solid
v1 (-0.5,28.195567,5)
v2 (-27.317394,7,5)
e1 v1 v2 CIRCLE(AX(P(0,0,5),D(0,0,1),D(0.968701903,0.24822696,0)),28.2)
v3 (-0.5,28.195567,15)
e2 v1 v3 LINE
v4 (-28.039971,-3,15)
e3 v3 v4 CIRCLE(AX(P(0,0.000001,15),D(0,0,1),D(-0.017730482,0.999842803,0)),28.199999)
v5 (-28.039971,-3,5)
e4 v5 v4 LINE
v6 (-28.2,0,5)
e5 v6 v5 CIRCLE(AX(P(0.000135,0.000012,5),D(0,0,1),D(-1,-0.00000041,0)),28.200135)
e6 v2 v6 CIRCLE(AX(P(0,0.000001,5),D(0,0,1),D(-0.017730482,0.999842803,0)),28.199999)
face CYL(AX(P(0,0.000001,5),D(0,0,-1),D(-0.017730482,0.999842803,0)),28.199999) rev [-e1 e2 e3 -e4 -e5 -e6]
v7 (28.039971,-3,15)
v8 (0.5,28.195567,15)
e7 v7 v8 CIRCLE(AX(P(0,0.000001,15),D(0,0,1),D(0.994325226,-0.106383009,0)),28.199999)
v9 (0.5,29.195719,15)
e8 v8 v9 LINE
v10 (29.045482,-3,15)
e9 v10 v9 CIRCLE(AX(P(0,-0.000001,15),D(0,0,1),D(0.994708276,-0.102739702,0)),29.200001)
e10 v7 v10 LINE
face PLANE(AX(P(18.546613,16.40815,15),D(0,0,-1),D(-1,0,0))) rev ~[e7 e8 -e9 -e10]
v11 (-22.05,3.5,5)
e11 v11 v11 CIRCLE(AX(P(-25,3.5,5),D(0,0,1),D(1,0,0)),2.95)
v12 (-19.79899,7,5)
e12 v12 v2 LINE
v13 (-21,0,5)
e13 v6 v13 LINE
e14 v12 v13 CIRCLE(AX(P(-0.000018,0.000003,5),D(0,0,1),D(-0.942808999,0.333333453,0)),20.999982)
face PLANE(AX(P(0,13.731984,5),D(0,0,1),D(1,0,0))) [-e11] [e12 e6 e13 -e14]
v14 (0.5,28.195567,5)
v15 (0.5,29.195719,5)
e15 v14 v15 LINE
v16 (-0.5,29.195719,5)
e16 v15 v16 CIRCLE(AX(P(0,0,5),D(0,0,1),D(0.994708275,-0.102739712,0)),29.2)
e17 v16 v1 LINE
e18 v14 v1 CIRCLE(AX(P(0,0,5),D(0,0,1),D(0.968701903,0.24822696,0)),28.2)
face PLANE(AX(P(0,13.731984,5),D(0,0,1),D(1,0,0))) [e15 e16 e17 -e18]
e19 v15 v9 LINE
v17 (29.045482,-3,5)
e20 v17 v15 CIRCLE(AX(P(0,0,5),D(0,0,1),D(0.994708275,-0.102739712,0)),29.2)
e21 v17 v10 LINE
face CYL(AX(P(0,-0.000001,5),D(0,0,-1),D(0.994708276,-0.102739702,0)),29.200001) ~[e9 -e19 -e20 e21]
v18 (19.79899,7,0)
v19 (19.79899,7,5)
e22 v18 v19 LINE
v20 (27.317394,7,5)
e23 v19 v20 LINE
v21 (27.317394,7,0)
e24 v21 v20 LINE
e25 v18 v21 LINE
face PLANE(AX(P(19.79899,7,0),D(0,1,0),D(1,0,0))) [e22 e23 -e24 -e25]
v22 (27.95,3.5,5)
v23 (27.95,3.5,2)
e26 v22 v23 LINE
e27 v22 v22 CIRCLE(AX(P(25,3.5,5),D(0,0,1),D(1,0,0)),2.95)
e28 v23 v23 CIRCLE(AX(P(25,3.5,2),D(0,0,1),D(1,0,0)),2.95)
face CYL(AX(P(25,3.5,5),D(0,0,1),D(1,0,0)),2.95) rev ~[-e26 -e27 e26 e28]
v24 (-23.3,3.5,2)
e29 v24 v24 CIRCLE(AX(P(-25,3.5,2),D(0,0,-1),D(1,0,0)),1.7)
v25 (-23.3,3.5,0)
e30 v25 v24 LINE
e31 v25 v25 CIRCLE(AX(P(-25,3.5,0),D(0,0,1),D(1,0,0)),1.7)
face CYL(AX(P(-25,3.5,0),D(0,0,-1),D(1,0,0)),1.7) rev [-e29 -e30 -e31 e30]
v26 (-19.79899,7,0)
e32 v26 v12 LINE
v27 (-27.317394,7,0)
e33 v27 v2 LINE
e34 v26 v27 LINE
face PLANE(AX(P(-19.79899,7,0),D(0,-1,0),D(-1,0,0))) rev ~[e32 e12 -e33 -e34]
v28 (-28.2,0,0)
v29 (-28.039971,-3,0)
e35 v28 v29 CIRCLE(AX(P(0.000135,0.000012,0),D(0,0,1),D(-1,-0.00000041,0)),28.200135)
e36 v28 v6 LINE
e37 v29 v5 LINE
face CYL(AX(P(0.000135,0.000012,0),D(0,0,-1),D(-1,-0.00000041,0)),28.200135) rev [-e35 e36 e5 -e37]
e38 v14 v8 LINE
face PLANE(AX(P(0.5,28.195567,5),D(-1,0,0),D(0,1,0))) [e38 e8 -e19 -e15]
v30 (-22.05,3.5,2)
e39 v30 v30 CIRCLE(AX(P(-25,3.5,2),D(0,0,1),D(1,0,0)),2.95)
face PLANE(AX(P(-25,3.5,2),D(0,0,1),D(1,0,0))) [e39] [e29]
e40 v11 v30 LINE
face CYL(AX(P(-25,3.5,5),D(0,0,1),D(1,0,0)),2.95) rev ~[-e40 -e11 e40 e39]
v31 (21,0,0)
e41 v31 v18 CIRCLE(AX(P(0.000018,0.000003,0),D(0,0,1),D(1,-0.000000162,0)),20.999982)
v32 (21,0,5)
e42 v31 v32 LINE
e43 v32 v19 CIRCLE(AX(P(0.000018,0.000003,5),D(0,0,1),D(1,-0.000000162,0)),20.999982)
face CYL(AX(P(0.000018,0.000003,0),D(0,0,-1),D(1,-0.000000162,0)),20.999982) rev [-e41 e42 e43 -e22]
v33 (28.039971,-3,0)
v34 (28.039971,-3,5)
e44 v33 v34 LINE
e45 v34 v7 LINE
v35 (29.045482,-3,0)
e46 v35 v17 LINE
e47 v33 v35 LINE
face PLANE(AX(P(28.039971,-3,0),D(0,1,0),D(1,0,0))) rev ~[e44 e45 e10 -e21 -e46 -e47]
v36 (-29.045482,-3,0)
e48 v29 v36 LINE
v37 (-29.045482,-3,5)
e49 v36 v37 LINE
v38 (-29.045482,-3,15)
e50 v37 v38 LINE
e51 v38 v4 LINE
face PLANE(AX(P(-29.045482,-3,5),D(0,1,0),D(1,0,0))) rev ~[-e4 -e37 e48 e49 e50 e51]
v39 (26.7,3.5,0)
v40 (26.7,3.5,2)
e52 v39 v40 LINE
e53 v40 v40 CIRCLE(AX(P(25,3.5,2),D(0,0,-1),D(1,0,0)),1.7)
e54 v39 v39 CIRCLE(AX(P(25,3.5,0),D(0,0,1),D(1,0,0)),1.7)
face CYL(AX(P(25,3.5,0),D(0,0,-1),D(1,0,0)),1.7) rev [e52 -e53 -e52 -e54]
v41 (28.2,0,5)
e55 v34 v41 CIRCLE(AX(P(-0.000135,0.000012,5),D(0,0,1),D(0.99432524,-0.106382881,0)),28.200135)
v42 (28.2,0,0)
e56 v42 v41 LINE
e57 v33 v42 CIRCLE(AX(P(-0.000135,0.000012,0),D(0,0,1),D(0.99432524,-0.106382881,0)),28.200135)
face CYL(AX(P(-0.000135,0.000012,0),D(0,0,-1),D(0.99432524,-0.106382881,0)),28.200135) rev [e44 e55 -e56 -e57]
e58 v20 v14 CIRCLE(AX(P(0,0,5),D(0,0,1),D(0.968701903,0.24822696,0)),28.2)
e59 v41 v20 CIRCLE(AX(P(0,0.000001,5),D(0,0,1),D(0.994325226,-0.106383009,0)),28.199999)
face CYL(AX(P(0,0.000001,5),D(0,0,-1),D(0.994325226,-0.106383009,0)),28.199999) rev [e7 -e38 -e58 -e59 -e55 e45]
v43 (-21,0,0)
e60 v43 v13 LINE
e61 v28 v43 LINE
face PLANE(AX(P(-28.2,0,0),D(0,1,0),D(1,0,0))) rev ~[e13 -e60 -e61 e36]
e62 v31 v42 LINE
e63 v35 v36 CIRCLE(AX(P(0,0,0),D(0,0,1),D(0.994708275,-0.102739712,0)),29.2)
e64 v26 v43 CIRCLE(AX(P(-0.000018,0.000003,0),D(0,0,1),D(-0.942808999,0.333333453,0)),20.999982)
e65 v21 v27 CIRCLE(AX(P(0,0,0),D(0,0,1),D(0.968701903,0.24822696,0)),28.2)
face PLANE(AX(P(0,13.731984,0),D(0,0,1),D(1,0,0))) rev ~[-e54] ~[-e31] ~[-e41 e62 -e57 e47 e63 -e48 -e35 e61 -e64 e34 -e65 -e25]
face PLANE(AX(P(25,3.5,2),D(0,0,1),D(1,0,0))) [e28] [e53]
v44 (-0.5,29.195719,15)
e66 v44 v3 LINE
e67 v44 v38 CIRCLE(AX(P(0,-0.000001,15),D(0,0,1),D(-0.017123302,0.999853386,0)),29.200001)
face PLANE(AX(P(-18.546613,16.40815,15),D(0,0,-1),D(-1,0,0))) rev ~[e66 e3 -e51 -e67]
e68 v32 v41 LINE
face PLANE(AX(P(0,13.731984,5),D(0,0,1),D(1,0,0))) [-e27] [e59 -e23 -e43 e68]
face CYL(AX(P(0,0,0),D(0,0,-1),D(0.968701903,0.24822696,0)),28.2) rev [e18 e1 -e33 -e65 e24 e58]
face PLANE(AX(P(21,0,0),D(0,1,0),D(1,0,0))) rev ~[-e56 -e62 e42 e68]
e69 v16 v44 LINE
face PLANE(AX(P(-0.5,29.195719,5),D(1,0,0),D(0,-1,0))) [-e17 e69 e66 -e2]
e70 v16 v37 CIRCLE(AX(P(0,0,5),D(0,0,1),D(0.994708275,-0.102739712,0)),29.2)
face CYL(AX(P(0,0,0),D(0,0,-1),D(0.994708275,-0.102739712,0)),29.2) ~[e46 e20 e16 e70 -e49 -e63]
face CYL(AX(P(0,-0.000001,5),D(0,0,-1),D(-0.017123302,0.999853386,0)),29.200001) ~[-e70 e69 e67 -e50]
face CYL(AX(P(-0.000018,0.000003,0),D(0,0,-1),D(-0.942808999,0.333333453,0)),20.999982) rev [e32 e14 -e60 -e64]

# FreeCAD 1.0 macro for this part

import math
import FreeCAD as App
import Part
import Sketcher
Q = App.Units.Quantity

doc = App.newDocument("Part")
body = doc.addObject("PartDesign::Body", "Body")

sketch1 = body.newObject("Sketcher::SketchObject", "Sketch")
sketch1.AttachmentSupport = (doc.getObject("XY_Plane"), [""])
sketch1.MapMode = "FlatFace"
sketch1.addGeometry(Part.ArcOfCircle(Part.Circle(App.Vector(0, 0, 0), App.Vector(0, 0, 1), 29.2), math.radians(-5.896957), math.radians(185.896957)), False)
sketch1.addGeometry(Part.LineSegment(App.Vector(-29.045482, -3, 0), App.Vector(-28.039971, -3, 0)), False)
sketch1.addGeometry(Part.ArcOfCircle(Part.Circle(App.Vector(0.000135, 0.000012, 0), App.Vector(0, 0, 1), 28.200135), math.radians(-179.999977), math.radians(-173.893154)), False)
sketch1.addGeometry(Part.LineSegment(App.Vector(-28.2, 0, 0), App.Vector(-21, 0, 0)), False)
sketch1.addGeometry(Part.ArcOfCircle(Part.Circle(App.Vector(-0.000018, 0.000003, 0), App.Vector(0, 0, 1), 20.999982), math.radians(160.528772), math.radians(180.000009)), False)
sketch1.addGeometry(Part.LineSegment(App.Vector(-19.79899, 7, 0), App.Vector(-27.317394, 7, 0)), False)
sketch1.addGeometry(Part.ArcOfCircle(Part.Circle(App.Vector(0, 0, 0), App.Vector(0, 0, 1), 28.2), math.radians(14.372618), math.radians(165.627382)), False)
sketch1.addGeometry(Part.LineSegment(App.Vector(27.317394, 7, 0), App.Vector(19.79899, 7, 0)), False)
sketch1.addGeometry(Part.ArcOfCircle(Part.Circle(App.Vector(0.000018, 0.000003, 0), App.Vector(0, 0, 1), 20.999982), math.radians(-0.000009), math.radians(19.471228)), False)
sketch1.addGeometry(Part.LineSegment(App.Vector(21, 0, 0), App.Vector(28.2, 0, 0)), False)
sketch1.addGeometry(Part.ArcOfCircle(Part.Circle(App.Vector(-0.000135, 0.000012, 0), App.Vector(0, 0, 1), 28.200135), math.radians(-6.106846), math.radians(-0.000023)), False)
sketch1.addGeometry(Part.LineSegment(App.Vector(28.039971, -3, 0), App.Vector(29.045482, -3, 0)), False)
sketch1.addGeometry(Part.Circle(App.Vector(-25, 3.5, 0), App.Vector(0, 0, 1), 1.7), False)
sketch1.addGeometry(Part.Circle(App.Vector(25, 3.5, 0), App.Vector(0, 0, 1), 1.7), False)
sketch1.addConstraint(Sketcher.Constraint("Coincident", 0, 2, 1, 1))
sketch1.addConstraint(Sketcher.Constraint("Coincident", 1, 2, 2, 2))
sketch1.addConstraint(Sketcher.Constraint("Coincident", 2, 1, 3, 1))
sketch1.addConstraint(Sketcher.Constraint("Coincident", 3, 2, 4, 2))
sketch1.addConstraint(Sketcher.Constraint("Coincident", 4, 1, 5, 1))
sketch1.addConstraint(Sketcher.Constraint("Coincident", 5, 2, 6, 2))
sketch1.addConstraint(Sketcher.Constraint("Coincident", 6, 1, 7, 1))
sketch1.addConstraint(Sketcher.Constraint("Coincident", 7, 2, 8, 2))
sketch1.addConstraint(Sketcher.Constraint("Coincident", 8, 1, 9, 1))
sketch1.addConstraint(Sketcher.Constraint("Coincident", 9, 2, 10, 2))
sketch1.addConstraint(Sketcher.Constraint("Coincident", 10, 1, 11, 1))
sketch1.addConstraint(Sketcher.Constraint("Coincident", 11, 2, 0, 1))
sketch1.addConstraint(Sketcher.Constraint("Horizontal", 1))
sketch1.addConstraint(Sketcher.Constraint("Horizontal", 3))
sketch1.addConstraint(Sketcher.Constraint("Horizontal", 5))
sketch1.addConstraint(Sketcher.Constraint("Horizontal", 7))
sketch1.addConstraint(Sketcher.Constraint("Horizontal", 9))
sketch1.addConstraint(Sketcher.Constraint("Horizontal", 11))
sketch1.addConstraint(Sketcher.Constraint("Coincident", 0, 3, -1, 1))
sketch1.addConstraint(Sketcher.Constraint("Coincident", 6, 3, -1, 1))
sketch1.addConstraint(Sketcher.Constraint("Equal", 4, 8))
sketch1.addConstraint(Sketcher.Constraint("Equal", 2, 10))
sketch1.addConstraint(Sketcher.Constraint("Equal", 12, 13))
sketch1.addConstraint(Sketcher.Constraint("Symmetric", 4, 3, 8, 3, -1, 1))
sketch1.addConstraint(Sketcher.Constraint("Symmetric", 2, 1, 9, 2, -1, 1))
sketch1.addConstraint(Sketcher.Constraint("Symmetric", 12, 3, 13, 3, -2))
sketch1.addConstraint(Sketcher.Constraint("Symmetric", 4, 1, 7, 2, -2))
sketch1.addConstraint(Sketcher.Constraint("Symmetric", 1, 2, 10, 1, -2))
sketch1.addConstraint(Sketcher.Constraint("PointOnObject", 2, 1, -1))
sketch1.addConstraint(Sketcher.Constraint("Diameter", 12, Q("3.4 mm")))
sketch1.addConstraint(Sketcher.Constraint("Radius", 0, Q("29.2 mm")))
sketch1.addConstraint(Sketcher.Constraint("Radius", 6, Q("28.2 mm")))
sketch1.addConstraint(Sketcher.Constraint("DistanceX", 3, 1, 3, 2, Q("7.2 mm")))
sketch1.addConstraint(Sketcher.Constraint("DistanceX", 12, 3, -1, 1, Q("25 mm")))
sketch1.addConstraint(Sketcher.Constraint("DistanceY", 0, 2, -1, 1, Q("3 mm")))
sketch1.addConstraint(Sketcher.Constraint("DistanceX", 3, 2, -1, 1, Q("21 mm")))
sketch1.addConstraint(Sketcher.Constraint("DistanceY", -1, 1, 4, 1, Q("7 mm")))
sketch1.addConstraint(Sketcher.Constraint("DistanceY", -1, 1, 12, 3, Q("3.5 mm")))
sketch1.addConstraint(Sketcher.Constraint("Radius", 2, Q("28.200135 mm")))
sketch1.addConstraint(Sketcher.Constraint("Radius", 4, Q("20.999982 mm")))
sketch1.addConstraint(Sketcher.Constraint("DistanceX", 1, 1, 1, 2, Q("1.005511 mm")))
pad1 = body.newObject("PartDesign::Pad", "Pad")
pad1.Profile = sketch1
pad1.Length = 5

sketch2 = body.newObject("Sketcher::SketchObject", "Sketch001")
sketch2.AttachmentSupport = (doc.getObject("XY_Plane"), [""])
sketch2.MapMode = "FlatFace"
sketch2.AttachmentOffset = App.Placement(App.Vector(0, 0, 5), App.Rotation())
sketch2.addGeometry(Part.ArcOfCircle(Part.Circle(App.Vector(0, 0, 0), App.Vector(0, 0, 1), 28.2), math.radians(91), math.radians(186)), False)
sketch2.addGeometry(Part.LineSegment(App.Vector(-0.5, 28.2, 0), App.Vector(-0.5, 29.2, 0)), False)
sketch2.addGeometry(Part.ArcOfCircle(Part.Circle(App.Vector(0, 0, 0), App.Vector(0, 0, 1), 29.2), math.radians(91), math.radians(186)), False)
sketch2.addGeometry(Part.LineSegment(App.Vector(-29, -3, 0), App.Vector(-28, -3, 0)), False)
sketch2.addGeometry(Part.ArcOfCircle(Part.Circle(App.Vector(0, 0, 0), App.Vector(0, 0, 1), 28.2), math.radians(-6), math.radians(89)), False)
sketch2.addGeometry(Part.LineSegment(App.Vector(28, -3, 0), App.Vector(29, -3, 0)), False)
sketch2.addGeometry(Part.ArcOfCircle(Part.Circle(App.Vector(0, 0, 0), App.Vector(0, 0, 1), 29.2), math.radians(-6), math.radians(89)), False)
sketch2.addGeometry(Part.LineSegment(App.Vector(0.5, 29.2, 0), App.Vector(0.5, 28.2, 0)), False)
sketch2.addConstraint(Sketcher.Constraint("Coincident", 0, 1, 1, 1))
sketch2.addConstraint(Sketcher.Constraint("Coincident", 1, 2, 2, 1))
sketch2.addConstraint(Sketcher.Constraint("Coincident", 2, 2, 3, 1))
sketch2.addConstraint(Sketcher.Constraint("Coincident", 3, 2, 0, 2))
sketch2.addConstraint(Sketcher.Constraint("Coincident", 4, 1, 5, 1))
sketch2.addConstraint(Sketcher.Constraint("Coincident", 5, 2, 6, 1))
sketch2.addConstraint(Sketcher.Constraint("Coincident", 6, 2, 7, 1))
sketch2.addConstraint(Sketcher.Constraint("Coincident", 7, 2, 4, 2))
sketch2.addConstraint(Sketcher.Constraint("Vertical", 1))
sketch2.addConstraint(Sketcher.Constraint("Horizontal", 3))
sketch2.addConstraint(Sketcher.Constraint("Horizontal", 5))
sketch2.addConstraint(Sketcher.Constraint("Vertical", 7))
sketch2.addConstraint(Sketcher.Constraint("Coincident", 0, 3, -1, 1))
sketch2.addConstraint(Sketcher.Constraint("Coincident", 2, 3, -1, 1))
sketch2.addConstraint(Sketcher.Constraint("Coincident", 4, 3, -1, 1))
sketch2.addConstraint(Sketcher.Constraint("Coincident", 6, 3, -1, 1))
sketch2.addConstraint(Sketcher.Constraint("Equal", 0, 4))
sketch2.addConstraint(Sketcher.Constraint("Equal", 2, 6))
sketch2.addConstraint(Sketcher.Constraint("Horizontal", 3, 2, 4, 1))
sketch2.addConstraint(Sketcher.Constraint("Horizontal", 1, 2, 6, 2))
sketch2.addConstraint(Sketcher.Constraint("Radius", 0, Q("28.199999 mm")))
sketch2.addConstraint(Sketcher.Constraint("Radius", 2, Q("29.200001 mm")))
sketch2.addConstraint(Sketcher.Constraint("DistanceY", 2, 2, -1, 1, Q("3 mm")))
sketch2.addConstraint(Sketcher.Constraint("DistanceX", 1, 2, 6, 2, Q("1 mm")))
pad2 = body.newObject("PartDesign::Pad", "Pad001")
pad2.Profile = sketch2
pad2.Length = 10

sketch3 = body.newObject("Sketcher::SketchObject", "Sketch002")
sketch3.AttachmentSupport = (doc.getObject("XY_Plane"), [""])
sketch3.MapMode = "FlatFace"
sketch3.AttachmentOffset = App.Placement(App.Vector(0, 0, 5), App.Rotation())
sketch3.addGeometry(Part.Circle(App.Vector(-25, 3.5, 0), App.Vector(0, 0, 1), 3), False)
sketch3.addGeometry(Part.Circle(App.Vector(25, 3.5, 0), App.Vector(0, 0, 1), 3), False)
sketch3.addConstraint(Sketcher.Constraint("Equal", 0, 1))
sketch3.addConstraint(Sketcher.Constraint("Symmetric", 0, 3, 1, 3, -2))
sketch3.addConstraint(Sketcher.Constraint("Diameter", 0, Q("5.9 mm")))
sketch3.addConstraint(Sketcher.Constraint("DistanceX", 0, 3, -1, 1, Q("25 mm")))
sketch3.addConstraint(Sketcher.Constraint("DistanceY", -1, 1, 0, 3, Q("3.5 mm")))
pocket1 = body.newObject("PartDesign::Pocket", "Pocket")
pocket1.Profile = sketch3
pocket1.Length = 3

doc.recompute()
